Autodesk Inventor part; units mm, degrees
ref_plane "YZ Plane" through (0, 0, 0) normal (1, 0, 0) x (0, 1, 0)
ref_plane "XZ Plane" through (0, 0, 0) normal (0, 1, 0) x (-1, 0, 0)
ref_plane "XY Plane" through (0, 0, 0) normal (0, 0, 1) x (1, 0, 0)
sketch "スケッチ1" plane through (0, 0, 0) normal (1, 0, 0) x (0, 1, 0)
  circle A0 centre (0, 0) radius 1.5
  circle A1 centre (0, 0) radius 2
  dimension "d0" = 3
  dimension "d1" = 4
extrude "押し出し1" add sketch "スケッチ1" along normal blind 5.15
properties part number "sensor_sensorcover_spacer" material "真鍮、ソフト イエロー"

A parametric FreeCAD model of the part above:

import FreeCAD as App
import Part
import Sketcher
from FreeCAD import Vector

doc = App.newDocument("Part")
body = doc.addObject("PartDesign::Body", "Body")

# Sketch on YZ plane
sketch1 = body.newObject("Sketcher::SketchObject", "Sketch")
sketch1.AttachmentSupport = (doc.getObject("YZ_Plane"), [""])
sketch1.MapMode = "FlatFace"
sketch1.addGeometry([
    Part.Circle(Vector(0, 0, 0), Vector(0, 0, 1), 2),
    Part.Circle(Vector(0, 0, 0), Vector(0, 0, 1), 1.5),
], False)
sketch1.addConstraint([
    Sketcher.Constraint("Coincident", 0, 3, -1, 1),
    Sketcher.Constraint("Coincident", 1, 3, -1, 1),
    Sketcher.Constraint("Diameter", 0, 4.0),
    Sketcher.Constraint("Diameter", 1, 3.0),
])
pad1 = body.newObject("PartDesign::Pad", "Pad")
pad1.Profile = sketch1
pad1.Length = 5.15

doc.recompute()
